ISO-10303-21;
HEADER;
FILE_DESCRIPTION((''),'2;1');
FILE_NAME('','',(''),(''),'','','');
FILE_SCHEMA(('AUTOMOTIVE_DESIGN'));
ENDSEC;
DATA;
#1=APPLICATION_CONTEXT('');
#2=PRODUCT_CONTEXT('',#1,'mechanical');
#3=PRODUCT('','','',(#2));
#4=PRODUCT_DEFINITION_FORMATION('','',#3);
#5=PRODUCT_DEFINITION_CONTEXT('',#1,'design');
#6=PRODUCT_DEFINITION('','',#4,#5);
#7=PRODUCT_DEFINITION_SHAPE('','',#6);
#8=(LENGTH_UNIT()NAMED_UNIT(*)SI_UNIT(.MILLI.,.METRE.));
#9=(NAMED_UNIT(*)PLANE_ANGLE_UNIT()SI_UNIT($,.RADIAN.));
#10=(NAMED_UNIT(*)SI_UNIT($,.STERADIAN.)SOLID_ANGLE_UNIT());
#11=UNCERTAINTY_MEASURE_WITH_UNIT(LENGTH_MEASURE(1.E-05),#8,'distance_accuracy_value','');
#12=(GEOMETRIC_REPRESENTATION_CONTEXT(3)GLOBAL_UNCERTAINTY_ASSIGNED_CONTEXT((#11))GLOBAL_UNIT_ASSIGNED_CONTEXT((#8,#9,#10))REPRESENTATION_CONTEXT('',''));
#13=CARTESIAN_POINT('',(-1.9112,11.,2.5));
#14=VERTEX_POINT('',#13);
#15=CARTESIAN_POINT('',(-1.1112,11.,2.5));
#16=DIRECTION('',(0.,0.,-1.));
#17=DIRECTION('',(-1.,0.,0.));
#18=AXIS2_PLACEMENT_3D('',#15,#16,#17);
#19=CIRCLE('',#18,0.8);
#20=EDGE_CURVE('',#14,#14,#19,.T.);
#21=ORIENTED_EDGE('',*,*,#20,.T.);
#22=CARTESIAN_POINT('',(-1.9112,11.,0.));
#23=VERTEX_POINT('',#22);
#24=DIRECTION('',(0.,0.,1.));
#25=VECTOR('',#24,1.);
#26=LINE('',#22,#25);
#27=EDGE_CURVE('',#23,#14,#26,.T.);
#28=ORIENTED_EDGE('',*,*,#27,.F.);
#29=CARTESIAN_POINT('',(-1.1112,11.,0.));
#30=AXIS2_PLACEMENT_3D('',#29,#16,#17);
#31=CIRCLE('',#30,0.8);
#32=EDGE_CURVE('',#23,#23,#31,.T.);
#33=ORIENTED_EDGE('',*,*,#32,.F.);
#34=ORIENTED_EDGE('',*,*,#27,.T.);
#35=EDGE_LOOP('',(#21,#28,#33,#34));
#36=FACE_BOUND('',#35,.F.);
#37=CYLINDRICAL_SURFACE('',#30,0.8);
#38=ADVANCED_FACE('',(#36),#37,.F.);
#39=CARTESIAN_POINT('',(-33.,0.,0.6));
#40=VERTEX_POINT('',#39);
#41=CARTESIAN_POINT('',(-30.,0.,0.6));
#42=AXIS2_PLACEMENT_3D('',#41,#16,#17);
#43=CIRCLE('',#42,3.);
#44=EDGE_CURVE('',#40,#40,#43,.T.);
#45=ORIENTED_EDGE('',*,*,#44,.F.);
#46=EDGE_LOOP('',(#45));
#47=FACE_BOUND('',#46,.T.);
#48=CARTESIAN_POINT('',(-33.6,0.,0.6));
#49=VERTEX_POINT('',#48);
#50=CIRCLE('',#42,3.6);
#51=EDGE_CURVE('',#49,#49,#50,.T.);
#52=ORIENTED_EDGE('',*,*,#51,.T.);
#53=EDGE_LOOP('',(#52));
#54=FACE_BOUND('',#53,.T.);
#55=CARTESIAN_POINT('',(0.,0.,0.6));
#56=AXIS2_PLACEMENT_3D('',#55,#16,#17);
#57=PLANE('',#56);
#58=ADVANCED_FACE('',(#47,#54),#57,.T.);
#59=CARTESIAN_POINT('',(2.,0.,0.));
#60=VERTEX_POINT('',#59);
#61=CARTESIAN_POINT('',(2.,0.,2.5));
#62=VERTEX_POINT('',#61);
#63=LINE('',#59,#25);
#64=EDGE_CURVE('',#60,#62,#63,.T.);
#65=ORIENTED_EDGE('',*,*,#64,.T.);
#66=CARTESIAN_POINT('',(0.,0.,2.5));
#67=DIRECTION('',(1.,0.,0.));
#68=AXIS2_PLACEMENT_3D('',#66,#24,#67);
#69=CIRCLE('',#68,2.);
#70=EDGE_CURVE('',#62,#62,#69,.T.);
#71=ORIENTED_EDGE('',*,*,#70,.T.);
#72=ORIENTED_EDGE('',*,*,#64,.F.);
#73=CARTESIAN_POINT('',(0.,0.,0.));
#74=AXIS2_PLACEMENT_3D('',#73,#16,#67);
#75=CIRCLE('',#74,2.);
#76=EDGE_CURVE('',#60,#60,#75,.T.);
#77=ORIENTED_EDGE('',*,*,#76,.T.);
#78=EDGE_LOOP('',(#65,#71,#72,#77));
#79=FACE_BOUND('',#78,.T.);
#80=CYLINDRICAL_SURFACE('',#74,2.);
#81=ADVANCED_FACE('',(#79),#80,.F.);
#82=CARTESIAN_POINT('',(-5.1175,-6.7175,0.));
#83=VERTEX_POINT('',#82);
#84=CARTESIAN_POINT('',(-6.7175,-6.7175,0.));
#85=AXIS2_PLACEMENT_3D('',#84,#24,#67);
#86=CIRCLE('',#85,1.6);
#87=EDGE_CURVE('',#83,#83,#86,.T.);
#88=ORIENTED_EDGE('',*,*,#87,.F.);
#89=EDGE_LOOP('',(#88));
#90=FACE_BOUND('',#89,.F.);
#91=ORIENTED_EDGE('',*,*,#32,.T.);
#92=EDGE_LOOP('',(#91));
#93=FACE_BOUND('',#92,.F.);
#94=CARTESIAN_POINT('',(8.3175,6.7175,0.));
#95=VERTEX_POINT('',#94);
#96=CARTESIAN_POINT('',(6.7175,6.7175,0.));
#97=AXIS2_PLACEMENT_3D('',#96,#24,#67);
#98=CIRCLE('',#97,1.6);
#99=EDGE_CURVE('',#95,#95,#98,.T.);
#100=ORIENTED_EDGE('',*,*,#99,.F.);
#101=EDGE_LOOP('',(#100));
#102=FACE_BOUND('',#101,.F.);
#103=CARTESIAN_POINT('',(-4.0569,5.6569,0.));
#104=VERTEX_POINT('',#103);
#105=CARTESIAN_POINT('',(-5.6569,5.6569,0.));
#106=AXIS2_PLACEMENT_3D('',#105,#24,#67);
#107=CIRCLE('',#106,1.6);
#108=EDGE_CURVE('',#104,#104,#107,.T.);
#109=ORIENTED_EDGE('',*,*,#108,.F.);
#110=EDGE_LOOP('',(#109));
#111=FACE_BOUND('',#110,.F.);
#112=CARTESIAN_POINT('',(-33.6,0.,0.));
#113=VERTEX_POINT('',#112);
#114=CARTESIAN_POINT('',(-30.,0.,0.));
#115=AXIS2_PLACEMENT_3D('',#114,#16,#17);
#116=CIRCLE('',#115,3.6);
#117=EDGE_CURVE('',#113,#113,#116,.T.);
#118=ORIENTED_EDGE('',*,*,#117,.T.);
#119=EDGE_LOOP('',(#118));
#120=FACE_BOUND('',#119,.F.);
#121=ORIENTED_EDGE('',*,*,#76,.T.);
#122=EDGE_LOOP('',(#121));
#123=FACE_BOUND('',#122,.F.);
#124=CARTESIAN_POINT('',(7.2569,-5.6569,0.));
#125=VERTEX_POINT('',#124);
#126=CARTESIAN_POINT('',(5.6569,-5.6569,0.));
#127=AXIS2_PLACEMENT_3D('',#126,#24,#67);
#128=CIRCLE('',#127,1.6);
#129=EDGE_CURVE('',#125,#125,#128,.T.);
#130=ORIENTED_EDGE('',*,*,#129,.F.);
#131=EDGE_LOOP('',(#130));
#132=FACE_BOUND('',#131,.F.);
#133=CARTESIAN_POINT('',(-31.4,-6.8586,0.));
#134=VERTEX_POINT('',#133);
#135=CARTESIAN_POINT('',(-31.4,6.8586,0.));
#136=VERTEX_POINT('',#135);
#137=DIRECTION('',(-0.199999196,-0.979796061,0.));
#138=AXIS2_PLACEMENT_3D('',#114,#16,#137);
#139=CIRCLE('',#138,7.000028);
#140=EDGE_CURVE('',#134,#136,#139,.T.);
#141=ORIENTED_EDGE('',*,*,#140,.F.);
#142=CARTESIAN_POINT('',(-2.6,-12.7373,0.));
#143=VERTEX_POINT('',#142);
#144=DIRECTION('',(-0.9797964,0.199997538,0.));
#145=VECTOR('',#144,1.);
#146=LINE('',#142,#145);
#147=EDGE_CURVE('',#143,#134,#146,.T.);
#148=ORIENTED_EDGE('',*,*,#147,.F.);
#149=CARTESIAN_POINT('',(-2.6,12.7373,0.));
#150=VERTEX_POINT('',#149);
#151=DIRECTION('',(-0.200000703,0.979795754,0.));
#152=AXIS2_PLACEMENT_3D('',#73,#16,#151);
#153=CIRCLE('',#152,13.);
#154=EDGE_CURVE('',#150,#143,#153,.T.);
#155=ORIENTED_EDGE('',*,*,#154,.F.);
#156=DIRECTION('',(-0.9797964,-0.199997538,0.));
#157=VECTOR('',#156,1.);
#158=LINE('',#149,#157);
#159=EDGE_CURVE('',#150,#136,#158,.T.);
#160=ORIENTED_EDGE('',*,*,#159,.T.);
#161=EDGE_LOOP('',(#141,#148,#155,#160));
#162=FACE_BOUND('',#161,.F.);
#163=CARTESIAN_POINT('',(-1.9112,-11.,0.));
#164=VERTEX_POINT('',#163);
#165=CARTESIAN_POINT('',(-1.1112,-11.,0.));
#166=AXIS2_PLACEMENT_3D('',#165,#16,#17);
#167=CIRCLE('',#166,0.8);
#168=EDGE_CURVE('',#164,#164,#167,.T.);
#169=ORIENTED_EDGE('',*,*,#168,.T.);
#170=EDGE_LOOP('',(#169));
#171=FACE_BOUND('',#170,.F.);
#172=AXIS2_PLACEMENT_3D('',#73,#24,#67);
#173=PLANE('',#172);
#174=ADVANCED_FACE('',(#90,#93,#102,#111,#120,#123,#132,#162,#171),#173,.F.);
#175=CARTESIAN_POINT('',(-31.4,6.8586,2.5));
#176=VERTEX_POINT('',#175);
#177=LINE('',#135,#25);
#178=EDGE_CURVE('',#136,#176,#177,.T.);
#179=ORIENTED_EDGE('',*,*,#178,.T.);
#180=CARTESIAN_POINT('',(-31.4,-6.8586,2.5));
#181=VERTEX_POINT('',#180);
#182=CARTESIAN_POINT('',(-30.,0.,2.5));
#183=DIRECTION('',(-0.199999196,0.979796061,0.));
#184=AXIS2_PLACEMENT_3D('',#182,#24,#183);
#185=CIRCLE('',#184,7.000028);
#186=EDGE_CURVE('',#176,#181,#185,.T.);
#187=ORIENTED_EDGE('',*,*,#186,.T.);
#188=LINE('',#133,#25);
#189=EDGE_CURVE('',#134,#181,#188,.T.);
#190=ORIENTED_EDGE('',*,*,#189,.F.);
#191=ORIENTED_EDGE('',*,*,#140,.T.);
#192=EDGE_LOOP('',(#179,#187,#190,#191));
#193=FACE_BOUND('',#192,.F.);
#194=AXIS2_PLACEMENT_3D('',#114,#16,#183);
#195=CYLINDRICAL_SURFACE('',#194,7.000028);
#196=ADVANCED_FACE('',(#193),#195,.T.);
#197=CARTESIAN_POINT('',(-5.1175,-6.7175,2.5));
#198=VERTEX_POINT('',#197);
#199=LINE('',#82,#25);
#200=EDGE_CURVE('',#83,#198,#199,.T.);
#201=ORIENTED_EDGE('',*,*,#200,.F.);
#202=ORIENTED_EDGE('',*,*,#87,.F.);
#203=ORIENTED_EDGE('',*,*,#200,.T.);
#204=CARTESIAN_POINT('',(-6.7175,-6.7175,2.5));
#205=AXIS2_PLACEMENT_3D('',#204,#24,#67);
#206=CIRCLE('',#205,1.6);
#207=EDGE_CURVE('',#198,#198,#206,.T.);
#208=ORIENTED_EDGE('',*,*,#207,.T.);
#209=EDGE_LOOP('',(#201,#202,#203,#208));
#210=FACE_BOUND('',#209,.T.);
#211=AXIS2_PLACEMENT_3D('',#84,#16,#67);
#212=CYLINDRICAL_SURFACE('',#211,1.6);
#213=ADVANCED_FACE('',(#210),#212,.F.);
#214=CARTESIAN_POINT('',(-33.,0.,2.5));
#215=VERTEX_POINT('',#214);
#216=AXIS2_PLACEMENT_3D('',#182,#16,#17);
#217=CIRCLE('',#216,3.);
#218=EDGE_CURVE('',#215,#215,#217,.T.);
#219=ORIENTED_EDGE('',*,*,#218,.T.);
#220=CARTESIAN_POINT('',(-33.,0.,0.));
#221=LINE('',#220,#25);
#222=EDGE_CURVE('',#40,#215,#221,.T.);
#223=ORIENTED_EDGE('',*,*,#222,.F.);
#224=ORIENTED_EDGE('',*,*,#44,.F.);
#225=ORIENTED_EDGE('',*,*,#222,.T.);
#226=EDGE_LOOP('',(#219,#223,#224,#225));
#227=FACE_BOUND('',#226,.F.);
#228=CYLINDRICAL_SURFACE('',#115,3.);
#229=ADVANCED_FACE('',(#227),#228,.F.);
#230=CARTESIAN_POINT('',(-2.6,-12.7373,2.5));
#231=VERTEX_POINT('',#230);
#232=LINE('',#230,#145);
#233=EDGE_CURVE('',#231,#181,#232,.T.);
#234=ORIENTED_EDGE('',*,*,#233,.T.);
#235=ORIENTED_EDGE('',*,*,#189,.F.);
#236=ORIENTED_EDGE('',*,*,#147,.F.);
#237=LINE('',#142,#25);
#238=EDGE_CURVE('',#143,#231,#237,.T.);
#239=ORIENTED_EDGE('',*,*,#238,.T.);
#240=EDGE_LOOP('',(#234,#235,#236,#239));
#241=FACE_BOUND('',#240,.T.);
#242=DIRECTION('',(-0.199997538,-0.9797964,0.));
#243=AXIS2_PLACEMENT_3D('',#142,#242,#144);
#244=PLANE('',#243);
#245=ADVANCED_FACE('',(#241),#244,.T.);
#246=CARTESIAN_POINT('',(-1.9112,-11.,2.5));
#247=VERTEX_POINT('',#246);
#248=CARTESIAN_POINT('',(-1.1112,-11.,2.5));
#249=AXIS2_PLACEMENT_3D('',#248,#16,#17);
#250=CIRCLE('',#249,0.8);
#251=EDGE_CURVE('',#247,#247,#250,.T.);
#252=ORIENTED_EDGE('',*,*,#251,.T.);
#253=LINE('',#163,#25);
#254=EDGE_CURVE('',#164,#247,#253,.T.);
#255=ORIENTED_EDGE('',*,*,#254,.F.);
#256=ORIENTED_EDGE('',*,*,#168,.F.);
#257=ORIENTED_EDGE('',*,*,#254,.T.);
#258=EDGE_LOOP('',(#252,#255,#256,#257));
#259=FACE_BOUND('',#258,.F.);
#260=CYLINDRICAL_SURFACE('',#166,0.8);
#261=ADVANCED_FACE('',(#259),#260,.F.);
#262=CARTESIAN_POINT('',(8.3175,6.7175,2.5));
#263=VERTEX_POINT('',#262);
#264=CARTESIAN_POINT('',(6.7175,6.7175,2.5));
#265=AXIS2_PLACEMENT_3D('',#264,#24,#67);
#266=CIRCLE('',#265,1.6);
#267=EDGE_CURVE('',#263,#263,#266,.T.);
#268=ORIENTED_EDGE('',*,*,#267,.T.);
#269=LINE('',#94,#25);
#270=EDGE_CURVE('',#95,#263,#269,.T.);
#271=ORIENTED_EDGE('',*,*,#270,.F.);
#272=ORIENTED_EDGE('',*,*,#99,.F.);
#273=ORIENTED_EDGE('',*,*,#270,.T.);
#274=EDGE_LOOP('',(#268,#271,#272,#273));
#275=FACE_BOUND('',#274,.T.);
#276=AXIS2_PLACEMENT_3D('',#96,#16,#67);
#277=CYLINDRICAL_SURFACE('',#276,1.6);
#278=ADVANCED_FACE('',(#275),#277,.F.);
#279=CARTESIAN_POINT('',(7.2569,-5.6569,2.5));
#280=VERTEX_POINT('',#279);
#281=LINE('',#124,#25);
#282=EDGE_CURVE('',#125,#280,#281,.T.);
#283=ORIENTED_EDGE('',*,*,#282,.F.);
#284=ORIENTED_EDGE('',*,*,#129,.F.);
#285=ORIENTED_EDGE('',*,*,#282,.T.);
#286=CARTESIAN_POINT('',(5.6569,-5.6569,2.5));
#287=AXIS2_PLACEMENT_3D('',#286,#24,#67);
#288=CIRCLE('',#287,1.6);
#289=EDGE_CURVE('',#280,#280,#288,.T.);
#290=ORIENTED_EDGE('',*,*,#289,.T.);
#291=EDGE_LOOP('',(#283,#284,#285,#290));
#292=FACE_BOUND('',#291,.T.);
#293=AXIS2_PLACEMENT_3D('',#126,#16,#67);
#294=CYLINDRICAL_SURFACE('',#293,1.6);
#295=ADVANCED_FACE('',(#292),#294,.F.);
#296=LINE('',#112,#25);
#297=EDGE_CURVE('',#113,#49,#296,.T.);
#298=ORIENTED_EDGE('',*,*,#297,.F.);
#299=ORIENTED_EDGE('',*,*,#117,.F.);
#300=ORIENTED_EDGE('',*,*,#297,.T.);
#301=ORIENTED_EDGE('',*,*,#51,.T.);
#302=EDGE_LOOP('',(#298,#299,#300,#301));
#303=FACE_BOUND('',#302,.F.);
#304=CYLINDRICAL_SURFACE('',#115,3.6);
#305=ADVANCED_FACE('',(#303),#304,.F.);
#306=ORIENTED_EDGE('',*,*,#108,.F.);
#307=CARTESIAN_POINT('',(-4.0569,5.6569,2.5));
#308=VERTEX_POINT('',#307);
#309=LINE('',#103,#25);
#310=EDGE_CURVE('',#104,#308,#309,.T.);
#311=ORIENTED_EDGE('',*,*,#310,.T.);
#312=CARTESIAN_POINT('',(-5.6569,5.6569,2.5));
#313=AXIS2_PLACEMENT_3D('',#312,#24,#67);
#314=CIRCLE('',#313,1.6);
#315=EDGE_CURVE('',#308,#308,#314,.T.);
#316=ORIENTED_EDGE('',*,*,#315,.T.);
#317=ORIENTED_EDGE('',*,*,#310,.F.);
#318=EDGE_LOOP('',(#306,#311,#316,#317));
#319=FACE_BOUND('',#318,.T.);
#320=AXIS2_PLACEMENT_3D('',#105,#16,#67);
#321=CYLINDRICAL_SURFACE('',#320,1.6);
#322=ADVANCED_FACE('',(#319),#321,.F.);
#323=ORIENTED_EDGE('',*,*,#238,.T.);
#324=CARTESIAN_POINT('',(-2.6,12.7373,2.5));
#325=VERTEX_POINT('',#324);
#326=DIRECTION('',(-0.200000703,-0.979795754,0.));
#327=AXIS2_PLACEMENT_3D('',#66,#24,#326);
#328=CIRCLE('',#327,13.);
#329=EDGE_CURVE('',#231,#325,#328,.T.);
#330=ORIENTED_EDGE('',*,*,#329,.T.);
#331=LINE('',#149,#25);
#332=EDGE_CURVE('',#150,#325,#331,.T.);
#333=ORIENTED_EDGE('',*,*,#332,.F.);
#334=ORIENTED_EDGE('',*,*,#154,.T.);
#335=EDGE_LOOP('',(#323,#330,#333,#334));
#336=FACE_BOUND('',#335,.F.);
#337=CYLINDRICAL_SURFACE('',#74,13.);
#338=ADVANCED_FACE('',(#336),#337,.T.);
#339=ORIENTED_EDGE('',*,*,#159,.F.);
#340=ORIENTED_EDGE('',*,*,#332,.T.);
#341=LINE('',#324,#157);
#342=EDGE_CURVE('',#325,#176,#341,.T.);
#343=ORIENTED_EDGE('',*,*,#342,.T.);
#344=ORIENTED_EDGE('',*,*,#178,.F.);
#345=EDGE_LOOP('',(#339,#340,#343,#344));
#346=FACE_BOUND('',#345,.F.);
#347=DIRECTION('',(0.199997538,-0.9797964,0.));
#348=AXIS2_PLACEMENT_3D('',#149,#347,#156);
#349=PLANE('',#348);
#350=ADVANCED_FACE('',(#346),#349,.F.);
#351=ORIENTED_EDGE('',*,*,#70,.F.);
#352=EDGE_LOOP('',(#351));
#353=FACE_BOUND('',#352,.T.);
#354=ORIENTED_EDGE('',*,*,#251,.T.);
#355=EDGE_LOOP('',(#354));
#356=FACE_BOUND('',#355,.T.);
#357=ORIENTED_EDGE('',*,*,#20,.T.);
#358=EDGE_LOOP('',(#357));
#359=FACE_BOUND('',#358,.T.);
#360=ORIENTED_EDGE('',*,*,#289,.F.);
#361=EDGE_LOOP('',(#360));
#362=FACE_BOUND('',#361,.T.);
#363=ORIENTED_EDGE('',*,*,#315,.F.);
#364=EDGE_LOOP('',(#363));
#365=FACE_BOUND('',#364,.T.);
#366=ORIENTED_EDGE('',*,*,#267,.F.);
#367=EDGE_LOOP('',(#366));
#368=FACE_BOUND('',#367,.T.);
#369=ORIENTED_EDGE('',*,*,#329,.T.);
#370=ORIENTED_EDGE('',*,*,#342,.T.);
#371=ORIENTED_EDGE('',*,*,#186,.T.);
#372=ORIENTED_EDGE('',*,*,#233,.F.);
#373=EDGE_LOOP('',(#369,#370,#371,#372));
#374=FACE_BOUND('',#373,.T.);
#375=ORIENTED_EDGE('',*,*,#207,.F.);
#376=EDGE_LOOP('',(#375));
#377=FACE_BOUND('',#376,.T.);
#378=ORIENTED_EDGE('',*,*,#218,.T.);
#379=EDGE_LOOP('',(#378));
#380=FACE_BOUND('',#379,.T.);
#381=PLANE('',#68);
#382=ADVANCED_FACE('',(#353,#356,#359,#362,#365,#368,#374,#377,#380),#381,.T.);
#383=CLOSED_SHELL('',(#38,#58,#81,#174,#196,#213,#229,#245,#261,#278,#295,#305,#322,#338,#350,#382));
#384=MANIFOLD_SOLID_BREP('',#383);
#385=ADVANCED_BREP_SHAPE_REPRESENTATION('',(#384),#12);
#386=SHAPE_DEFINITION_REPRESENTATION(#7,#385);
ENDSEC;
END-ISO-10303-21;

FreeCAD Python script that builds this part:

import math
import FreeCAD as App
import Part
import Sketcher

doc = App.newDocument("Part")
params = doc.addObject("Spreadsheet::Sheet", "Params")
for row, (alias, value) in enumerate([
    ("sketch1_diameter", "4 mm"),
    ("sketch1_radius", "7 mm"),
    ("sketch1_radius2", "13 mm"),
    ("sketch1_diameter2", "3.2 mm"),
    ("pad1_length", "2.5 mm"),
    ("sketch2_diameter", "7.2 mm"),
    ("pocket1_length", "0.6 mm"),
    ("sketch3_diameter", "6 mm"),
    ("sketch3_diameter2", "1.6 mm"),
    ("pocket2_length", "2.5 mm"),
], start=1):
    params.set(f"A{row}", alias)
    params.set(f"B{row}", "=" + value)
    params.setAlias(f"B{row}", alias)

body = doc.addObject("PartDesign::Body", "Body")

# Sketch on XY plane
sketch1 = body.newObject("Sketcher::SketchObject", "Sketch")
sketch1.AttachmentSupport = (doc.getObject("XY_Plane"), [""])
sketch1.MapMode = "FlatFace"
sketch1.addGeometry(Part.LineSegment(App.Vector(-2.6, 12.7, 0), App.Vector(-31.4, 6.9, 0)), False)
sketch1.addGeometry(Part.ArcOfCircle(Part.Circle(App.Vector(-30, 0, 0), App.Vector(0, 0, 1), 7), math.radians(102), math.radians(258)), False)
sketch1.addGeometry(Part.LineSegment(App.Vector(-31.4, -6.9, 0), App.Vector(-2.6, -12.7, 0)), False)
sketch1.addGeometry(Part.ArcOfCircle(Part.Circle(App.Vector(0, 0, 0), App.Vector(0, 0, 1), 13), math.radians(-102), math.radians(102)), False)
sketch1.addGeometry(Part.Circle(App.Vector(0, 0, 0), App.Vector(0, 0, 1), 2), False)
sketch1.addGeometry(Part.Circle(App.Vector(-5.7, 5.7, 0), App.Vector(0, 0, 1), 1.6), False)
sketch1.addGeometry(Part.Circle(App.Vector(6.7, 6.7, 0), App.Vector(0, 0, 1), 1.6), False)
sketch1.addGeometry(Part.Circle(App.Vector(-6.7, -6.7, 0), App.Vector(0, 0, 1), 1.6), False)
sketch1.addGeometry(Part.Circle(App.Vector(5.7, -5.7, 0), App.Vector(0, 0, 1), 1.6), False)
sketch1.addConstraint(Sketcher.Constraint("Tangent", 0, 2, 1, 1))
sketch1.addConstraint(Sketcher.Constraint("Tangent", 1, 2, 2, 1))
sketch1.addConstraint(Sketcher.Constraint("Tangent", 2, 2, 3, 1))
sketch1.addConstraint(Sketcher.Constraint("Tangent", 3, 2, 0, 1))
sketch1.addConstraint(Sketcher.Constraint("Coincident", 3, 3, -1, 1))
sketch1.addConstraint(Sketcher.Constraint("Coincident", 4, 3, -1, 1))
sketch1.addConstraint(Sketcher.Constraint("Equal", 5, 6))
sketch1.addConstraint(Sketcher.Constraint("Equal", 6, 7))
sketch1.addConstraint(Sketcher.Constraint("Equal", 7, 8))
sketch1.addConstraint(Sketcher.Constraint("Symmetric", 6, 3, 7, 3, -1, 1))
sketch1.addConstraint(Sketcher.Constraint("Symmetric", 5, 3, 8, 3, -1, 1))
sketch1.addConstraint(Sketcher.Constraint("PointOnObject", 1, 3, -1))
sketch1.addConstraint(Sketcher.Constraint("Diameter", 4, 4.0))
sketch1.addConstraint(Sketcher.Constraint("Radius", 1, 7.0))
sketch1.addConstraint(Sketcher.Constraint("Radius", 3, 13.0))
sketch1.addConstraint(Sketcher.Constraint("DistanceX", 1, 3, -1, 1, 30.0))
sketch1.addConstraint(Sketcher.Constraint("Diameter", 5, 3.2))
sketch1.addConstraint(Sketcher.Constraint("DistanceX", 5, 3, -1, 1, 5.657))
sketch1.addConstraint(Sketcher.Constraint("DistanceY", -1, 1, 5, 3, 5.657))
sketch1.addConstraint(Sketcher.Constraint("DistanceX", 7, 3, 6, 3, 13.435))
sketch1.addConstraint(Sketcher.Constraint("DistanceY", 7, 3, 6, 3, 13.435))
sketch1.setExpression("Constraints[12]", "Params.sketch1_diameter")
sketch1.setExpression("Constraints[13]", "Params.sketch1_radius")
sketch1.setExpression("Constraints[14]", "Params.sketch1_radius2")
sketch1.setExpression("Constraints[16]", "Params.sketch1_diameter2")
pad1 = body.newObject("PartDesign::Pad", "Pad")
pad1.Profile = sketch1
pad1.setExpression("Length", "Params.pad1_length")

# Sketch on XY plane
sketch2 = body.newObject("Sketcher::SketchObject", "Sketch001")
sketch2.AttachmentSupport = (doc.getObject("XY_Plane"), [""])
sketch2.MapMode = "FlatFace"
sketch2.addGeometry(Part.Circle(App.Vector(-30, 0, 0), App.Vector(0, 0, 1), 3.6), False)
sketch2.addConstraint(Sketcher.Constraint("PointOnObject", 0, 3, -1))
sketch2.addConstraint(Sketcher.Constraint("Diameter", 0, 7.2))
sketch2.addConstraint(Sketcher.Constraint("DistanceX", 0, 3, -1, 1, 30.0))
sketch2.setExpression("Constraints[1]", "Params.sketch2_diameter")
pocket1 = body.newObject("PartDesign::Pocket", "Pocket")
pocket1.Profile = sketch2
pocket1.setExpression("Length", "Params.pocket1_length")
pocket1.Reversed = True

# Sketch on XY plane
sketch3 = body.newObject("Sketcher::SketchObject", "Sketch002")
sketch3.AttachmentSupport = (doc.getObject("XY_Plane"), [""])
sketch3.MapMode = "FlatFace"
sketch3.addGeometry(Part.Circle(App.Vector(-30, 0, 0), App.Vector(0, 0, 1), 3), False)
sketch3.addGeometry(Part.Circle(App.Vector(-1.1, 11, 0), App.Vector(0, 0, 1), 0.8), False)
sketch3.addGeometry(Part.Circle(App.Vector(-1.1, -11, 0), App.Vector(0, 0, 1), 0.8), False)
sketch3.addConstraint(Sketcher.Constraint("Equal", 1, 2))
sketch3.addConstraint(Sketcher.Constraint("Symmetric", 1, 3, 2, 3, -1))
sketch3.addConstraint(Sketcher.Constraint("PointOnObject", 0, 3, -1))
sketch3.addConstraint(Sketcher.Constraint("Diameter", 0, 6.0))
sketch3.addConstraint(Sketcher.Constraint("Diameter", 1, 1.6))
sketch3.addConstraint(Sketcher.Constraint("DistanceY", 2, 3, 1, 3, 22.0))
sketch3.addConstraint(Sketcher.Constraint("DistanceX", 0, 3, -1, 1, 30.0))
sketch3.addConstraint(Sketcher.Constraint("DistanceX", 1, 3, -1, 1, 1.1112))
sketch3.setExpression("Constraints[3]", "Params.sketch3_diameter")
sketch3.setExpression("Constraints[4]", "Params.sketch3_diameter2")
pocket2 = body.newObject("PartDesign::Pocket", "Pocket001")
pocket2.Profile = sketch3
pocket2.setExpression("Length", "Params.pocket2_length")
pocket2.Reversed = True

doc.recompute()
